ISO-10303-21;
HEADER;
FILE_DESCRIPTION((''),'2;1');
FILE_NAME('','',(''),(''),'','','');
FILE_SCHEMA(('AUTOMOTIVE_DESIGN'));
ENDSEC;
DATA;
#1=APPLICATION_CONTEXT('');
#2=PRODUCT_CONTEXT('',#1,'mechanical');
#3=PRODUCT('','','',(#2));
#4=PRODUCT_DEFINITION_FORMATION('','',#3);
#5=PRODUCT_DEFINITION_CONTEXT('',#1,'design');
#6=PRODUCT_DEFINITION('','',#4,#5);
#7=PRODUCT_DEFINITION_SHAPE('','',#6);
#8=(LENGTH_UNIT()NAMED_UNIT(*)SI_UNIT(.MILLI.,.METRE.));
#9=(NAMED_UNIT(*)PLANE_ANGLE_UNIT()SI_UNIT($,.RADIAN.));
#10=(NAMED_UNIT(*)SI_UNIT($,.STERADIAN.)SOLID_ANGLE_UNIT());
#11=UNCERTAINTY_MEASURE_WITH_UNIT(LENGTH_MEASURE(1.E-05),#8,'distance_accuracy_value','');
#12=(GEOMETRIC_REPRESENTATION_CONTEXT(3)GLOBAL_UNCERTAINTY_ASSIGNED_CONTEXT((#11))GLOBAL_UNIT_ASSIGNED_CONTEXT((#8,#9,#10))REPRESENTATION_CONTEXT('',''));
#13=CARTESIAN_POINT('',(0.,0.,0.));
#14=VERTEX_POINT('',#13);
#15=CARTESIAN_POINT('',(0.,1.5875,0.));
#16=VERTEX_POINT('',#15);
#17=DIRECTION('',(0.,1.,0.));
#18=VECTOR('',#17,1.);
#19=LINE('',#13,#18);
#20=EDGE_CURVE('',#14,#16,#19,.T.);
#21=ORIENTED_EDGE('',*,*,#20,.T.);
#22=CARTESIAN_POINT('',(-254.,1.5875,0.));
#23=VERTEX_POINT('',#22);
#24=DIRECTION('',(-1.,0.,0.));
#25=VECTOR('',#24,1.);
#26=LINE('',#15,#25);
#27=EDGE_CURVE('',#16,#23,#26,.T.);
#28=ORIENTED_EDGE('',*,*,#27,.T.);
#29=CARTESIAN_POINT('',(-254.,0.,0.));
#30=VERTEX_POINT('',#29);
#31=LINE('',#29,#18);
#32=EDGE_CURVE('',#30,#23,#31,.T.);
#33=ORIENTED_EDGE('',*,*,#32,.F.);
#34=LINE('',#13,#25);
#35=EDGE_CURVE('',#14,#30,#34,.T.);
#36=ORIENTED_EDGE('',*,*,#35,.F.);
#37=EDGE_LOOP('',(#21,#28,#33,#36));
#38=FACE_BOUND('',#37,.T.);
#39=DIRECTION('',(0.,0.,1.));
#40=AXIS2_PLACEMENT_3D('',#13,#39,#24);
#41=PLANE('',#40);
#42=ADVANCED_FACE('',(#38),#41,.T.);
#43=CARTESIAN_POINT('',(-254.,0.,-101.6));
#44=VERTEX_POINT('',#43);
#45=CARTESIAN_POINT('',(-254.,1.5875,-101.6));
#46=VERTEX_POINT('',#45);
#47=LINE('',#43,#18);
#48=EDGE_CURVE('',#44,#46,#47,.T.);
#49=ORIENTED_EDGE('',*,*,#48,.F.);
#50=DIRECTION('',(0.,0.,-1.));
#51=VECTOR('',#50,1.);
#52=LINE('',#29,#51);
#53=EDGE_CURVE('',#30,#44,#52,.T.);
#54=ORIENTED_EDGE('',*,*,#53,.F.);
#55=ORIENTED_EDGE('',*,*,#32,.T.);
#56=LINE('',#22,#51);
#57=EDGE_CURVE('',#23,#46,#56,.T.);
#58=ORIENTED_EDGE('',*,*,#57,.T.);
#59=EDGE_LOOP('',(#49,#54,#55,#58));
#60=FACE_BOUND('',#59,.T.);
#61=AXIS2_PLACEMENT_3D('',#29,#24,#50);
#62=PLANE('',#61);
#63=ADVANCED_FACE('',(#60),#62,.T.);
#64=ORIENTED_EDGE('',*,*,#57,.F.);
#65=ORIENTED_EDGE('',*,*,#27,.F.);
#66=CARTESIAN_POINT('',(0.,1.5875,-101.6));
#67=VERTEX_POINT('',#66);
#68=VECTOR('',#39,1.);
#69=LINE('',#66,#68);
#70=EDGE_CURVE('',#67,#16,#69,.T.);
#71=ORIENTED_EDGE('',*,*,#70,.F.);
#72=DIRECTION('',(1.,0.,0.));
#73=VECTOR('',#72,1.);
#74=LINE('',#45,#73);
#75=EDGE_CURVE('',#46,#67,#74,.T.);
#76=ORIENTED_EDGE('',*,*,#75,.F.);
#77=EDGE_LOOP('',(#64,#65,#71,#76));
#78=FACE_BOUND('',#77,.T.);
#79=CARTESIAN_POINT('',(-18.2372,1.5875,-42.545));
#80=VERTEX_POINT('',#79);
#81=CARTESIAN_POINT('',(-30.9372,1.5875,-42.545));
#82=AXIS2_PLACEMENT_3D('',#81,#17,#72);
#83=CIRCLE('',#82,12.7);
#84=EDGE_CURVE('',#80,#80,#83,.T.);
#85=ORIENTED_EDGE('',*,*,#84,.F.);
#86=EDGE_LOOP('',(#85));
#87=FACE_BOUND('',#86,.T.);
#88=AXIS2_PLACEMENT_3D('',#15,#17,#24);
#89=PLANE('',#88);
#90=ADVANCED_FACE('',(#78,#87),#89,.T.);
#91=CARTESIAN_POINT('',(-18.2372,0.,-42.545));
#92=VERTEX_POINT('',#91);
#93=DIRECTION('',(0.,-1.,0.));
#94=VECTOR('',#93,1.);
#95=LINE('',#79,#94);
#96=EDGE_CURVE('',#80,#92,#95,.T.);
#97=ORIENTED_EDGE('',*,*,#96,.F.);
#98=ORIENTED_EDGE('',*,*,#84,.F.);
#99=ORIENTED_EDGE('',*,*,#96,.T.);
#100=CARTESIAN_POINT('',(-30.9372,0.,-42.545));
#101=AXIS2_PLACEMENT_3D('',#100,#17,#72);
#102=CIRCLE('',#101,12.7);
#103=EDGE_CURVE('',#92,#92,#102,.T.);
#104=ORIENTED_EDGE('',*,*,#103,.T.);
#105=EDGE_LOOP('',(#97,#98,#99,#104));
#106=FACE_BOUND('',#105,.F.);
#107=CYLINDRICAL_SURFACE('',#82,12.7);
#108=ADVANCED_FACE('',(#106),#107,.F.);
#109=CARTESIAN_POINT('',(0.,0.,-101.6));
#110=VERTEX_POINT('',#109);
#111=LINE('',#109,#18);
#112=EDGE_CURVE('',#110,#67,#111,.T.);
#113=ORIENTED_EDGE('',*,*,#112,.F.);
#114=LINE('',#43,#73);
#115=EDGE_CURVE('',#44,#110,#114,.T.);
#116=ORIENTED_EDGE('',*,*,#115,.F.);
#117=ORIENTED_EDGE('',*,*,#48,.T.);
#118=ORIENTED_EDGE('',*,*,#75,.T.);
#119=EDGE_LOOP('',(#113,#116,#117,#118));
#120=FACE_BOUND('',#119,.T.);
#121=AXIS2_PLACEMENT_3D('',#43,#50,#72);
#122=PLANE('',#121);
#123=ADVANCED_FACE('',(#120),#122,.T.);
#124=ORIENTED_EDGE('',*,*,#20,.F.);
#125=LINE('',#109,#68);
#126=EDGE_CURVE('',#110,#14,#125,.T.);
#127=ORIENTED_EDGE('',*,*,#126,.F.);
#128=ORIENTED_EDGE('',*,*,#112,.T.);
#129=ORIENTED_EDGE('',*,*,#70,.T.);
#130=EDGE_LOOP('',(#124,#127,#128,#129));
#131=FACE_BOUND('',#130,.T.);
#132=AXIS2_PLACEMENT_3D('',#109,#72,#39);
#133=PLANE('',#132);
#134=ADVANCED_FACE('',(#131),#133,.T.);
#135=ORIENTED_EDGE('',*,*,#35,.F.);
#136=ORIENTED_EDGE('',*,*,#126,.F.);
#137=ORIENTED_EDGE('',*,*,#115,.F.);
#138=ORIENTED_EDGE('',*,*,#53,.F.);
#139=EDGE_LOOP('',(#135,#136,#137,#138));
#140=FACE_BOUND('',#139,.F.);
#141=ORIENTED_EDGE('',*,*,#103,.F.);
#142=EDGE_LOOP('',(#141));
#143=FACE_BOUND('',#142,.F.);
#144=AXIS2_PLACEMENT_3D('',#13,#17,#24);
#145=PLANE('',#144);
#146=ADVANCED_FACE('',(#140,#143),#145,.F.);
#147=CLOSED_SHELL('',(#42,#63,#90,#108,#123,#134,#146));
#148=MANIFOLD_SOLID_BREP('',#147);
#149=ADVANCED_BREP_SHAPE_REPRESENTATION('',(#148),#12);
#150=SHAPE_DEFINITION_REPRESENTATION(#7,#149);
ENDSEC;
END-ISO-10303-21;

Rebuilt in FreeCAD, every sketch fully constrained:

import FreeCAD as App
import Part
import Sketcher
from FreeCAD import Vector
Q = App.Units.Quantity

doc = App.newDocument("Part")
body = doc.addObject("PartDesign::Body", "Body")

# Sketch on XZ plane
sketch1 = body.newObject("Sketcher::SketchObject", "Sketch")
sketch1.AttachmentSupport = (doc.getObject("XZ_Plane"), [""])
sketch1.MapMode = "FlatFace"
sketch1.addGeometry(Part.LineSegment(Vector(-254, 0, 0), Vector(0, 0, 0)), False)
sketch1.addGeometry(Part.LineSegment(Vector(0, 0, 0), Vector(0, -102, 0)), False)
sketch1.addGeometry(Part.LineSegment(Vector(0, -102, 0), Vector(-254, -102, 0)), False)
sketch1.addGeometry(Part.LineSegment(Vector(-254, -102, 0), Vector(-254, 0, 0)), False)
sketch1.addConstraint(Sketcher.Constraint("Coincident", 0, 2, 1, 1))
sketch1.addConstraint(Sketcher.Constraint("Coincident", 1, 2, 2, 1))
sketch1.addConstraint(Sketcher.Constraint("Coincident", 2, 2, 3, 1))
sketch1.addConstraint(Sketcher.Constraint("Coincident", 3, 2, 0, 1))
sketch1.addConstraint(Sketcher.Constraint("Horizontal", 0))
sketch1.addConstraint(Sketcher.Constraint("Vertical", 1))
sketch1.addConstraint(Sketcher.Constraint("Horizontal", 2))
sketch1.addConstraint(Sketcher.Constraint("Vertical", 3))
sketch1.addConstraint(Sketcher.Constraint("Coincident", 0, 2, -1, 1))
sketch1.addConstraint(Sketcher.Constraint("DistanceX", 0, 1, 0, 2, Q("10 in")))
sketch1.addConstraint(Sketcher.Constraint("DistanceY", 1, 2, 1, 1, Q("4 in")))
pad1 = body.newObject("PartDesign::Pad", "Pad")
pad1.Profile = sketch1
pad1.Length = Q("0.0625 in")
pad1.Reversed = True

# Sketch on XZ plane
sketch2 = body.newObject("Sketcher::SketchObject", "Sketch001")
sketch2.AttachmentSupport = (doc.getObject("XZ_Plane"), [""])
sketch2.MapMode = "FlatFace"
sketch2.AttachmentOffset = App.Placement(Vector(0, 0, -0.0625 * 25.4), App.Rotation())
sketch2.addGeometry(Part.Circle(Vector(-31, -43, 0), Vector(0, 0, 1), 13), False)
sketch2.addConstraint(Sketcher.Constraint("Diameter", 0, Q("1 in")))
sketch2.addConstraint(Sketcher.Constraint("DistanceX", 0, 3, -1, 1, Q("1.218 in")))
sketch2.addConstraint(Sketcher.Constraint("DistanceY", 0, 3, -1, 1, Q("1.675 in")))
pocket1 = body.newObject("PartDesign::Pocket", "Pocket")
pocket1.Profile = sketch2
pocket1.Length = Q("1 in")
pocket1.Reversed = True

doc.recompute()
